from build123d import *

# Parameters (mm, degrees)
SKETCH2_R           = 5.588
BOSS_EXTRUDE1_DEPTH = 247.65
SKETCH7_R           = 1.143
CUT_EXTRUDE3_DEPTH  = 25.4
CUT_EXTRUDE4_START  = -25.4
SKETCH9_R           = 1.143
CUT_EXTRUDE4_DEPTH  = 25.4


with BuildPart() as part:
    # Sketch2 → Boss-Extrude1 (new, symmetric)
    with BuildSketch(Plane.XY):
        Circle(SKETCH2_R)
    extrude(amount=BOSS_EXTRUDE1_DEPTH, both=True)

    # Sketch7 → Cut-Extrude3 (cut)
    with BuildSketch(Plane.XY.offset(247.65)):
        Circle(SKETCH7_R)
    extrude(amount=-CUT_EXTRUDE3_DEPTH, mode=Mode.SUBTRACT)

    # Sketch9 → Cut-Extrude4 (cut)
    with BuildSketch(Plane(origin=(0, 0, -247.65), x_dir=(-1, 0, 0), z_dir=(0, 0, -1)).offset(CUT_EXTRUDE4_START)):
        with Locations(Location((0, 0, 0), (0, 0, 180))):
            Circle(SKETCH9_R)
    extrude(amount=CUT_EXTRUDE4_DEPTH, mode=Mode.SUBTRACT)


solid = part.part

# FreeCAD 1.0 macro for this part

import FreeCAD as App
import Part
import Sketcher
Q = App.Units.Quantity

doc = App.newDocument("Part")
params = doc.addObject("Spreadsheet::Sheet", "Params")
for row, (alias, value) in enumerate([
    ("sketch1_diameter", "0.44 in"),
    ("pad1_length", "19.5 in"),
    ("sketch2_diameter", "0.09 in"),
    ("pocket1_length", "1 in"),
    ("sketch3_diameter", "0.09 in"),
    ("pocket2_length", "1 in"),
], start=1):
    params.set(f"A{row}", alias)
    params.set(f"B{row}", "=" + value)
    params.setAlias(f"B{row}", alias)

body = doc.addObject("PartDesign::Body", "Body")

# Sketch on XY plane
sketch1 = body.newObject("Sketcher::SketchObject", "Sketch")
sketch1.AttachmentSupport = (doc.getObject("XY_Plane"), [""])
sketch1.MapMode = "FlatFace"
sketch1.addGeometry(Part.Circle(App.Vector(0, 0, 0), App.Vector(0, 0, 1), 6), False)
sketch1.addConstraint([
    Sketcher.Constraint("Coincident", 0, 3, -1, 1),
    Sketcher.Constraint("Diameter", 0, Q("0.44 in")),
])
sketch1.setExpression("Constraints[1]", "Params.sketch1_diameter")
pad1 = body.newObject("PartDesign::Pad", "Pad")
pad1.Profile = sketch1
pad1.setExpression("Length", "Params.pad1_length")
pad1.Midplane = True

# Sketch on XY plane
sketch2 = body.newObject("Sketcher::SketchObject", "Sketch001")
sketch2.AttachmentSupport = (doc.getObject("XY_Plane"), [""])
sketch2.MapMode = "FlatFace"
sketch2.AttachmentOffset = App.Placement(App.Vector(0, 0, 9.75 * 25.4), App.Rotation())
sketch2.addGeometry(Part.Circle(App.Vector(0, 0, 0), App.Vector(0, 0, 1), 1.1), False)
sketch2.addConstraint([
    Sketcher.Constraint("Coincident", 0, 3, -1, 1),
    Sketcher.Constraint("Diameter", 0, Q("0.09 in")),
])
sketch2.setExpression("Constraints[1]", "Params.sketch2_diameter")
pocket1 = body.newObject("PartDesign::Pocket", "Pocket")
pocket1.Profile = sketch2
pocket1.setExpression("Length", "Params.pocket1_length")

# Sketch on XY plane
sketch3 = body.newObject("Sketcher::SketchObject", "Sketch002")
sketch3.AttachmentSupport = (doc.getObject("XY_Plane"), [""])
sketch3.MapMode = "FlatFace"
sketch3.AttachmentOffset = App.Placement(App.Vector(0, 0, -8.75 * 25.4), App.Rotation())
sketch3.addGeometry(Part.Circle(App.Vector(0, 0, 0), App.Vector(0, 0, 1), 1.1), False)
sketch3.addConstraint([
    Sketcher.Constraint("Coincident", 0, 3, -1, 1),
    Sketcher.Constraint("Diameter", 0, Q("0.09 in")),
])
sketch3.setExpression("Constraints[1]", "Params.sketch3_diameter")
pocket2 = body.newObject("PartDesign::Pocket", "Pocket001")
pocket2.Profile = sketch3
pocket2.setExpression("Length", "Params.pocket2_length")

doc.recompute()
